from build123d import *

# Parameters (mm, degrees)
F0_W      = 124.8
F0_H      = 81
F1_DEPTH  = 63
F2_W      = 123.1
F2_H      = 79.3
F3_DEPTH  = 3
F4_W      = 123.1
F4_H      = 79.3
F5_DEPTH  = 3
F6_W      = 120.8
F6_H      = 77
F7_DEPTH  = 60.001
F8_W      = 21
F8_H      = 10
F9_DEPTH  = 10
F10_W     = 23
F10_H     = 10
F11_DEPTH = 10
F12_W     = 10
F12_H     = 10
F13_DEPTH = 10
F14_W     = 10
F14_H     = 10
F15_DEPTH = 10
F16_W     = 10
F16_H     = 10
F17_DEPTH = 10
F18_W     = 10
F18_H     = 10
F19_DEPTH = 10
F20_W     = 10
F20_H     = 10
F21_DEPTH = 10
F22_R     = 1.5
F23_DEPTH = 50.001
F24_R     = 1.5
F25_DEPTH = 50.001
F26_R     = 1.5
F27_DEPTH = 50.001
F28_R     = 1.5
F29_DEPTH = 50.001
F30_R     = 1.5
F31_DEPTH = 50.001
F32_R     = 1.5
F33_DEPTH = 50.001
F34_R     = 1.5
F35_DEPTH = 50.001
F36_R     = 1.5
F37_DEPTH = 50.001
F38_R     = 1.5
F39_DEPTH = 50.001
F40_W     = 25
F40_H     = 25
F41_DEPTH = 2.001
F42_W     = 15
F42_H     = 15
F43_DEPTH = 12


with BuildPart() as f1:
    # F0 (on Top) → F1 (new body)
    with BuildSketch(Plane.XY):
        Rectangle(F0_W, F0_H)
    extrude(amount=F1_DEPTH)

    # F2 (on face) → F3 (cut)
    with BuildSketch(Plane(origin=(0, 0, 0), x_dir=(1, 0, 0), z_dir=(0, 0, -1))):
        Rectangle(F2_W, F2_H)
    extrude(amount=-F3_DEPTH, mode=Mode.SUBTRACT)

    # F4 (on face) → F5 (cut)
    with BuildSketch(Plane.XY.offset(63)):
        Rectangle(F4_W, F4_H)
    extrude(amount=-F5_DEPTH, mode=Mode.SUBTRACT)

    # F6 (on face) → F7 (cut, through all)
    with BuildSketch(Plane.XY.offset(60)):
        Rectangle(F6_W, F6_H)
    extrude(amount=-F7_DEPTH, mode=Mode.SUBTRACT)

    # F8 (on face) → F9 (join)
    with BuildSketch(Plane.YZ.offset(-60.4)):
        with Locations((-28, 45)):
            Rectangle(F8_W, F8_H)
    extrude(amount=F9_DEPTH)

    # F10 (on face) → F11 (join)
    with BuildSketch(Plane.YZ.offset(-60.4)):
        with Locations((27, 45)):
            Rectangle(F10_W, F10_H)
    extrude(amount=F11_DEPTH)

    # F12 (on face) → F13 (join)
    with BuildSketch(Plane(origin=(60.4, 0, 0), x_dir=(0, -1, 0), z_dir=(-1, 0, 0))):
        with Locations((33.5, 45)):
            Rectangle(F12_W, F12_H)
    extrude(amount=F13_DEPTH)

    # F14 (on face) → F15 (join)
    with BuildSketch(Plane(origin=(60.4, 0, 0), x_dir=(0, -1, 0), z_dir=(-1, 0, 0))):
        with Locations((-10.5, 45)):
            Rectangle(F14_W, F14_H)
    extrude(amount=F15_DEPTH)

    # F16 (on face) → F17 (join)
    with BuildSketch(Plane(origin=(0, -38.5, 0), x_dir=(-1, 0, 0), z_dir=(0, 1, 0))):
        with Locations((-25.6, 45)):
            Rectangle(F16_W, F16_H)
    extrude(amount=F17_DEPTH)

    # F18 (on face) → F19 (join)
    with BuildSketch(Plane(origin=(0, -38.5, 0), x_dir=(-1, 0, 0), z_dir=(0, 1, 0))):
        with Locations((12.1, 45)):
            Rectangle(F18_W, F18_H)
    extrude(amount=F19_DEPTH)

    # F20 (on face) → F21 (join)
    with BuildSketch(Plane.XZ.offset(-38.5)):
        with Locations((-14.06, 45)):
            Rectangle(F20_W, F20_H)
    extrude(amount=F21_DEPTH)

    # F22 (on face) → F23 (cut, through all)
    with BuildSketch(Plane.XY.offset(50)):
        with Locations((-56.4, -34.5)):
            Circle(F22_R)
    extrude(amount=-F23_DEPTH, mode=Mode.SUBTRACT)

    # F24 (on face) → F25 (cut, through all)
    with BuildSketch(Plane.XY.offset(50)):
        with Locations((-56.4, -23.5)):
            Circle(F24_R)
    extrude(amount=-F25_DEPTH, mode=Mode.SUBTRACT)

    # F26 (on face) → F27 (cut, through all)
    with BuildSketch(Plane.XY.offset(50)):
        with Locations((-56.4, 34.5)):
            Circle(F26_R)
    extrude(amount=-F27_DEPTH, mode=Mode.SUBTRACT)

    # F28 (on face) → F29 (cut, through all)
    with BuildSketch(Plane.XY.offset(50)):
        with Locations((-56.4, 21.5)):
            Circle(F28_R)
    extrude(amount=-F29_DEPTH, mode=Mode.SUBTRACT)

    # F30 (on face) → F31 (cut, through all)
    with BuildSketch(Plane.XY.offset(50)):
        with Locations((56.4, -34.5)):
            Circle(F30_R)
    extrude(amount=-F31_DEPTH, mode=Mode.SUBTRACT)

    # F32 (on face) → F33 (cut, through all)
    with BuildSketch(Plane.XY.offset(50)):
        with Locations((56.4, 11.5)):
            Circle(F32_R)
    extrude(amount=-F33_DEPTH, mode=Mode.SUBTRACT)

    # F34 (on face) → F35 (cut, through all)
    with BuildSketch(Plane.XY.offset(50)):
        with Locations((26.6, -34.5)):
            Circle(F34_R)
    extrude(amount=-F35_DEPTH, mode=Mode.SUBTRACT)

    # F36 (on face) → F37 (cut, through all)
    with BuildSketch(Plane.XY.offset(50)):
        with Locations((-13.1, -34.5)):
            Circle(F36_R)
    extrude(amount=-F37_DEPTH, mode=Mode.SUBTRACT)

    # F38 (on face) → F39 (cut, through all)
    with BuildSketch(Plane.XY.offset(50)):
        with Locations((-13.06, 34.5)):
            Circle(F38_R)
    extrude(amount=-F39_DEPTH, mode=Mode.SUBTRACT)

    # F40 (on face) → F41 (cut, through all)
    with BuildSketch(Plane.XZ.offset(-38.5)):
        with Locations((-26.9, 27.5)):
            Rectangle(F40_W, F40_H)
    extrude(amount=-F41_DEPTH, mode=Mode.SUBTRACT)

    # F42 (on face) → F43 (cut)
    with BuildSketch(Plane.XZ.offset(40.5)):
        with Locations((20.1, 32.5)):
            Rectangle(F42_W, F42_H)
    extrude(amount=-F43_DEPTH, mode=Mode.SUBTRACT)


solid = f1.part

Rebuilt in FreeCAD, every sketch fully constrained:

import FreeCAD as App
import Part
import Sketcher

V = App.Vector
Q = App.Units.Quantity


def add_polygon(sketch, points):
    """Adds a closed chain of lines whose ends are joined by coincident constraints."""
    first, n = sketch.GeometryCount, len(points)
    for a, b in zip(points, points[1:] + points[:1]):
        sketch.addGeometry(Part.LineSegment(App.Vector(*a, 0), App.Vector(*b, 0)), False)
    for i in range(n):
        sketch.addConstraint(Sketcher.Constraint("Coincident", first + i, 2, first + (i + 1) % n, 1))

doc = App.newDocument("Part")
body = doc.addObject("PartDesign::Body", "Body")

# Sketch on XY plane
sketch1 = body.newObject("Sketcher::SketchObject", "Sketch")
sketch1.AttachmentSupport = (doc.getObject("XY_Plane"), [""])
sketch1.MapMode = "FlatFace"
add_polygon(sketch1, [(-62, 40), (-62, -40), (62, -40), (62, 40)])  # lines 0-3
sketch1.addConstraint([
    Sketcher.Constraint("Vertical", 0),
    Sketcher.Constraint("Horizontal", 1),
    Sketcher.Constraint("Vertical", 2),
    Sketcher.Constraint("Horizontal", 3),
    Sketcher.Constraint("Symmetric", 0, 2, 2, 2, -1, 1),
    Sketcher.Constraint("DistanceY", 0, 2, 0, 1, Q("81 mm")),
    Sketcher.Constraint("DistanceX", 1, 1, 1, 2, Q("124.8 mm")),
])
pad1 = body.newObject("PartDesign::Pad", "Pad")
pad1.Profile = sketch1
pad1.Length = 63

# Sketch on XY plane
sketch2 = body.newObject("Sketcher::SketchObject", "Sketch001")
sketch2.AttachmentSupport = (doc.getObject("XY_Plane"), [""])
sketch2.MapMode = "FlatFace"
add_polygon(sketch2, [(-62, -40), (-62, 40), (62, 40), (62, -40)])  # lines 0-3
sketch2.addConstraint([
    Sketcher.Constraint("Vertical", 0),
    Sketcher.Constraint("Horizontal", 1),
    Sketcher.Constraint("Vertical", 2),
    Sketcher.Constraint("Horizontal", 3),
    Sketcher.Constraint("Symmetric", 0, 2, 2, 2, -1, 1),
    Sketcher.Constraint("DistanceX", 1, 1, 1, 2, Q("123.1 mm")),
    Sketcher.Constraint("DistanceY", 0, 1, 0, 2, Q("79.3 mm")),
])
pocket1 = body.newObject("PartDesign::Pocket", "Pocket")
pocket1.Profile = sketch2
pocket1.Length = 3
pocket1.Reversed = True

# Sketch on XY plane
sketch3 = body.newObject("Sketcher::SketchObject", "Sketch002")
sketch3.AttachmentSupport = (doc.getObject("XY_Plane"), [""])
sketch3.MapMode = "FlatFace"
sketch3.AttachmentOffset = App.Placement(V(0, 0, 63), App.Rotation())
add_polygon(sketch3, [(-62, 40), (-62, -40), (62, -40), (62, 40)])  # lines 0-3
sketch3.addConstraint([
    Sketcher.Constraint("Vertical", 0),
    Sketcher.Constraint("Horizontal", 1),
    Sketcher.Constraint("Vertical", 2),
    Sketcher.Constraint("Horizontal", 3),
    Sketcher.Constraint("Symmetric", 0, 2, 2, 2, -1, 1),
    Sketcher.Constraint("DistanceX", 1, 1, 1, 2, Q("123.1 mm")),
    Sketcher.Constraint("DistanceY", 0, 2, 0, 1, Q("79.3 mm")),
])
pocket2 = body.newObject("PartDesign::Pocket", "Pocket001")
pocket2.Profile = sketch3
pocket2.Length = 3

# Sketch on XY plane
sketch4 = body.newObject("Sketcher::SketchObject", "Sketch003")
sketch4.AttachmentSupport = (doc.getObject("XY_Plane"), [""])
sketch4.MapMode = "FlatFace"
sketch4.AttachmentOffset = App.Placement(V(0, 0, 60), App.Rotation())
add_polygon(sketch4, [(-60, 38), (-60, -38), (60, -38), (60, 38)])  # lines 0-3
sketch4.addConstraint([
    Sketcher.Constraint("Vertical", 0),
    Sketcher.Constraint("Horizontal", 1),
    Sketcher.Constraint("Vertical", 2),
    Sketcher.Constraint("Horizontal", 3),
    Sketcher.Constraint("Symmetric", 0, 2, 2, 2, -1, 1),
    Sketcher.Constraint("DistanceY", 0, 2, 0, 1, Q("77 mm")),
    Sketcher.Constraint("DistanceX", 1, 1, 1, 2, Q("120.8 mm")),
])
pocket3 = body.newObject("PartDesign::Pocket", "Pocket002")
pocket3.Profile = sketch4
pocket3.Type = "ThroughAll"

# Sketch on YZ plane
sketch5 = body.newObject("Sketcher::SketchObject", "Sketch004")
sketch5.AttachmentSupport = (doc.getObject("YZ_Plane"), [""])
sketch5.MapMode = "FlatFace"
sketch5.AttachmentOffset = App.Placement(V(0, 0, -60.4), App.Rotation())
add_polygon(sketch5, [(-38, 50), (-38, 40), (-18, 40), (-18, 50)])  # lines 0-3
sketch5.addConstraint([
    Sketcher.Constraint("Vertical", 0),
    Sketcher.Constraint("Horizontal", 1),
    Sketcher.Constraint("Vertical", 2),
    Sketcher.Constraint("Horizontal", 3),
    Sketcher.Constraint("DistanceX", 1, 1, 1, 2, Q("21 mm")),
    Sketcher.Constraint("DistanceY", 0, 2, 0, 1, Q("10 mm")),
    Sketcher.Constraint("DistanceY", -1, 1, 0, 2, Q("40 mm")),
    Sketcher.Constraint("DistanceX", 0, 2, -1, 1, Q("38.5 mm")),
])
pad2 = body.newObject("PartDesign::Pad", "Pad001")
pad2.Profile = sketch5
pad2.Length = 10

# Sketch on YZ plane
sketch6 = body.newObject("Sketcher::SketchObject", "Sketch005")
sketch6.AttachmentSupport = (doc.getObject("YZ_Plane"), [""])
sketch6.MapMode = "FlatFace"
sketch6.AttachmentOffset = App.Placement(V(0, 0, -60.4), App.Rotation())
add_polygon(sketch6, [(16, 50), (16, 40), (38, 40), (38, 50)])  # lines 0-3
sketch6.addConstraint([
    Sketcher.Constraint("Vertical", 0),
    Sketcher.Constraint("Horizontal", 1),
    Sketcher.Constraint("Vertical", 2),
    Sketcher.Constraint("Horizontal", 3),
    Sketcher.Constraint("DistanceX", 1, 1, 1, 2, Q("23 mm")),
    Sketcher.Constraint("DistanceY", 0, 2, 0, 1, Q("10 mm")),
    Sketcher.Constraint("DistanceY", -1, 1, 0, 2, Q("40 mm")),
    Sketcher.Constraint("DistanceX", -1, 1, 0, 2, Q("15.5 mm")),
])
pad3 = body.newObject("PartDesign::Pad", "Pad002")
pad3.Profile = sketch6
pad3.Length = 10

# Sketch on YZ plane
sketch7 = body.newObject("Sketcher::SketchObject", "Sketch006")
sketch7.AttachmentSupport = (doc.getObject("YZ_Plane"), [""])
sketch7.MapMode = "FlatFace"
sketch7.AttachmentOffset = App.Placement(V(0, 0, 60.4), App.Rotation())
add_polygon(sketch7, [(-28, 50), (-28, 40), (-38, 40), (-38, 50)])  # lines 0-3
sketch7.addConstraint([
    Sketcher.Constraint("Vertical", 0),
    Sketcher.Constraint("Horizontal", 1),
    Sketcher.Constraint("Vertical", 2),
    Sketcher.Constraint("Horizontal", 3),
    Sketcher.Constraint("Equal", 3, 0),
    Sketcher.Constraint("DistanceX", 1, 2, 1, 1, Q("10 mm")),
    Sketcher.Constraint("DistanceY", -1, 1, 0, 2, Q("40 mm")),
    Sketcher.Constraint("DistanceX", 0, 2, -1, 1, Q("28.5 mm")),
])
pad4 = body.newObject("PartDesign::Pad", "Pad003")
pad4.Profile = sketch7
pad4.Length = 10
pad4.Reversed = True

# Sketch on YZ plane
sketch8 = body.newObject("Sketcher::SketchObject", "Sketch007")
sketch8.AttachmentSupport = (doc.getObject("YZ_Plane"), [""])
sketch8.MapMode = "FlatFace"
sketch8.AttachmentOffset = App.Placement(V(0, 0, 60.4), App.Rotation())
add_polygon(sketch8, [(16, 50), (16, 40), (6, 40), (6, 50)])  # lines 0-3
sketch8.addConstraint([
    Sketcher.Constraint("Vertical", 0),
    Sketcher.Constraint("Horizontal", 1),
    Sketcher.Constraint("Vertical", 2),
    Sketcher.Constraint("Horizontal", 3),
    Sketcher.Constraint("Equal", 3, 0),
    Sketcher.Constraint("DistanceX", 1, 2, 1, 1, Q("10 mm")),
    Sketcher.Constraint("DistanceY", -1, 1, 0, 2, Q("40 mm")),
    Sketcher.Constraint("DistanceX", -1, 1, 0, 2, Q("15.5 mm")),
])
pad5 = body.newObject("PartDesign::Pad", "Pad004")
pad5.Profile = sketch8
pad5.Length = 10
pad5.Reversed = True

# Sketch on XZ plane
sketch9 = body.newObject("Sketcher::SketchObject", "Sketch008")
sketch9.AttachmentSupport = (doc.getObject("XZ_Plane"), [""])
sketch9.MapMode = "FlatFace"
sketch9.AttachmentOffset = App.Placement(V(0, 0, 38.5), App.Rotation())
add_polygon(sketch9, [(31, 50), (31, 40), (21, 40), (21, 50)])  # lines 0-3
sketch9.addConstraint([
    Sketcher.Constraint("Vertical", 0),
    Sketcher.Constraint("Horizontal", 1),
    Sketcher.Constraint("Vertical", 2),
    Sketcher.Constraint("Horizontal", 3),
    Sketcher.Constraint("Equal", 3, 0),
    Sketcher.Constraint("DistanceX", 1, 2, 1, 1, Q("10 mm")),
    Sketcher.Constraint("DistanceY", -1, 1, 0, 2, Q("40 mm")),
    Sketcher.Constraint("DistanceX", -1, 1, 0, 2, Q("30.6 mm")),
])
pad6 = body.newObject("PartDesign::Pad", "Pad005")
pad6.Profile = sketch9
pad6.Length = 10
pad6.Reversed = True

# Sketch on XZ plane
sketch10 = body.newObject("Sketcher::SketchObject", "Sketch009")
sketch10.AttachmentSupport = (doc.getObject("XZ_Plane"), [""])
sketch10.MapMode = "FlatFace"
sketch10.AttachmentOffset = App.Placement(V(0, 0, 38.5), App.Rotation())
add_polygon(sketch10, [(-7, 50), (-7, 40), (-17, 40), (-17, 50)])  # lines 0-3
sketch10.addConstraint([
    Sketcher.Constraint("Vertical", 0),
    Sketcher.Constraint("Horizontal", 1),
    Sketcher.Constraint("Vertical", 2),
    Sketcher.Constraint("Horizontal", 3),
    Sketcher.Constraint("Equal", 3, 0),
    Sketcher.Constraint("DistanceX", 1, 2, 1, 1, Q("10 mm")),
    Sketcher.Constraint("DistanceY", -1, 1, 0, 2, Q("40 mm")),
    Sketcher.Constraint("DistanceX", 0, 2, -1, 1, Q("7.1 mm")),
])
pad7 = body.newObject("PartDesign::Pad", "Pad006")
pad7.Profile = sketch10
pad7.Length = 10
pad7.Reversed = True

# Sketch on XZ plane
sketch11 = body.newObject("Sketcher::SketchObject", "Sketch010")
sketch11.AttachmentSupport = (doc.getObject("XZ_Plane"), [""])
sketch11.MapMode = "FlatFace"
sketch11.AttachmentOffset = App.Placement(V(0, 0, -38.5), App.Rotation())
add_polygon(sketch11, [(-19, 50), (-19, 40), (-9, 40), (-9, 50)])  # lines 0-3
sketch11.addConstraint([
    Sketcher.Constraint("Vertical", 0),
    Sketcher.Constraint("Horizontal", 1),
    Sketcher.Constraint("Vertical", 2),
    Sketcher.Constraint("Horizontal", 3),
    Sketcher.Constraint("Equal", 3, 0),
    Sketcher.Constraint("DistanceX", 1, 1, 1, 2, Q("10 mm")),
    Sketcher.Constraint("DistanceY", -1, 1, 0, 2, Q("40 mm")),
    Sketcher.Constraint("DistanceX", 0, 2, -1, 1, Q("19.06 mm")),
])
pad8 = body.newObject("PartDesign::Pad", "Pad007")
pad8.Profile = sketch11
pad8.Length = 10

# Sketch on XY plane
sketch12 = body.newObject("Sketcher::SketchObject", "Sketch011")
sketch12.AttachmentSupport = (doc.getObject("XY_Plane"), [""])
sketch12.MapMode = "FlatFace"
sketch12.AttachmentOffset = App.Placement(V(0, 0, 50), App.Rotation())
sketch12.addGeometry(Part.Circle(V(-56.4, -34.5, 0), V(0, 0, 1), 1.5), False)
sketch12.addConstraint([
    Sketcher.Constraint("Diameter", 0, Q("3 mm")),
    Sketcher.Constraint("DistanceX", 0, 3, -1, 1, Q("56.4 mm")),
    Sketcher.Constraint("DistanceY", 0, 3, -1, 1, Q("34.5 mm")),
])
pocket4 = body.newObject("PartDesign::Pocket", "Pocket003")
pocket4.Profile = sketch12
pocket4.Type = "ThroughAll"

# Sketch on XY plane
sketch13 = body.newObject("Sketcher::SketchObject", "Sketch012")
sketch13.AttachmentSupport = (doc.getObject("XY_Plane"), [""])
sketch13.MapMode = "FlatFace"
sketch13.AttachmentOffset = App.Placement(V(0, 0, 50), App.Rotation())
sketch13.addGeometry(Part.Circle(V(-56.4, -23.5, 0), V(0, 0, 1), 1.5), False)
sketch13.addConstraint([
    Sketcher.Constraint("Diameter", 0, Q("3 mm")),
    Sketcher.Constraint("DistanceX", 0, 3, -1, 1, Q("56.4 mm")),
    Sketcher.Constraint("DistanceY", 0, 3, -1, 1, Q("23.5 mm")),
])
pocket5 = body.newObject("PartDesign::Pocket", "Pocket004")
pocket5.Profile = sketch13
pocket5.Type = "ThroughAll"

# Sketch on XY plane
sketch14 = body.newObject("Sketcher::SketchObject", "Sketch013")
sketch14.AttachmentSupport = (doc.getObject("XY_Plane"), [""])
sketch14.MapMode = "FlatFace"
sketch14.AttachmentOffset = App.Placement(V(0, 0, 50), App.Rotation())
sketch14.addGeometry(Part.Circle(V(-56.4, 34.5, 0), V(0, 0, 1), 1.5), False)
sketch14.addConstraint([
    Sketcher.Constraint("Diameter", 0, Q("3 mm")),
    Sketcher.Constraint("DistanceX", 0, 3, -1, 1, Q("56.4 mm")),
    Sketcher.Constraint("DistanceY", -1, 1, 0, 3, Q("34.5 mm")),
])
pocket6 = body.newObject("PartDesign::Pocket", "Pocket005")
pocket6.Profile = sketch14
pocket6.Type = "ThroughAll"

# Sketch on XY plane
sketch15 = body.newObject("Sketcher::SketchObject", "Sketch014")
sketch15.AttachmentSupport = (doc.getObject("XY_Plane"), [""])
sketch15.MapMode = "FlatFace"
sketch15.AttachmentOffset = App.Placement(V(0, 0, 50), App.Rotation())
sketch15.addGeometry(Part.Circle(V(-56.4, 21.5, 0), V(0, 0, 1), 1.5), False)
sketch15.addConstraint([
    Sketcher.Constraint("Diameter", 0, Q("3 mm")),
    Sketcher.Constraint("DistanceX", 0, 3, -1, 1, Q("56.4 mm")),
    Sketcher.Constraint("DistanceY", -1, 1, 0, 3, Q("21.5 mm")),
])
pocket7 = body.newObject("PartDesign::Pocket", "Pocket006")
pocket7.Profile = sketch15
pocket7.Type = "ThroughAll"

# Sketch on XY plane
sketch16 = body.newObject("Sketcher::SketchObject", "Sketch015")
sketch16.AttachmentSupport = (doc.getObject("XY_Plane"), [""])
sketch16.MapMode = "FlatFace"
sketch16.AttachmentOffset = App.Placement(V(0, 0, 50), App.Rotation())
sketch16.addGeometry(Part.Circle(V(56.4, -34.5, 0), V(0, 0, 1), 1.5), False)
sketch16.addConstraint([
    Sketcher.Constraint("Diameter", 0, Q("3 mm")),
    Sketcher.Constraint("DistanceX", -1, 1, 0, 3, Q("56.4 mm")),
    Sketcher.Constraint("DistanceY", 0, 3, -1, 1, Q("34.5 mm")),
])
pocket8 = body.newObject("PartDesign::Pocket", "Pocket007")
pocket8.Profile = sketch16
pocket8.Type = "ThroughAll"

# Sketch on XY plane
sketch17 = body.newObject("Sketcher::SketchObject", "Sketch016")
sketch17.AttachmentSupport = (doc.getObject("XY_Plane"), [""])
sketch17.MapMode = "FlatFace"
sketch17.AttachmentOffset = App.Placement(V(0, 0, 50), App.Rotation())
sketch17.addGeometry(Part.Circle(V(56.4, 11.5, 0), V(0, 0, 1), 1.5), False)
sketch17.addConstraint([
    Sketcher.Constraint("Diameter", 0, Q("3 mm")),
    Sketcher.Constraint("DistanceX", -1, 1, 0, 3, Q("56.4 mm")),
    Sketcher.Constraint("DistanceY", -1, 1, 0, 3, Q("11.5 mm")),
])
pocket9 = body.newObject("PartDesign::Pocket", "Pocket008")
pocket9.Profile = sketch17
pocket9.Type = "ThroughAll"

# Sketch on XY plane
sketch18 = body.newObject("Sketcher::SketchObject", "Sketch017")
sketch18.AttachmentSupport = (doc.getObject("XY_Plane"), [""])
sketch18.MapMode = "FlatFace"
sketch18.AttachmentOffset = App.Placement(V(0, 0, 50), App.Rotation())
sketch18.addGeometry(Part.Circle(V(26.6, -34.5, 0), V(0, 0, 1), 1.5), False)
sketch18.addConstraint([
    Sketcher.Constraint("Diameter", 0, Q("3 mm")),
    Sketcher.Constraint("DistanceX", -1, 1, 0, 3, Q("26.6 mm")),
    Sketcher.Constraint("DistanceY", 0, 3, -1, 1, Q("34.5 mm")),
])
pocket10 = body.newObject("PartDesign::Pocket", "Pocket009")
pocket10.Profile = sketch18
pocket10.Type = "ThroughAll"

# Sketch on XY plane
sketch19 = body.newObject("Sketcher::SketchObject", "Sketch018")
sketch19.AttachmentSupport = (doc.getObject("XY_Plane"), [""])
sketch19.MapMode = "FlatFace"
sketch19.AttachmentOffset = App.Placement(V(0, 0, 50), App.Rotation())
sketch19.addGeometry(Part.Circle(V(-13.1, -34.5, 0), V(0, 0, 1), 1.5), False)
sketch19.addConstraint([
    Sketcher.Constraint("Diameter", 0, Q("3 mm")),
    Sketcher.Constraint("DistanceX", 0, 3, -1, 1, Q("13.1 mm")),
    Sketcher.Constraint("DistanceY", 0, 3, -1, 1, Q("34.5 mm")),
])
pocket11 = body.newObject("PartDesign::Pocket", "Pocket010")
pocket11.Profile = sketch19
pocket11.Type = "ThroughAll"

# Sketch on XY plane
sketch20 = body.newObject("Sketcher::SketchObject", "Sketch019")
sketch20.AttachmentSupport = (doc.getObject("XY_Plane"), [""])
sketch20.MapMode = "FlatFace"
sketch20.AttachmentOffset = App.Placement(V(0, 0, 50), App.Rotation())
sketch20.addGeometry(Part.Circle(V(-13.1, 34.5, 0), V(0, 0, 1), 1.5), False)
sketch20.addConstraint([
    Sketcher.Constraint("Diameter", 0, Q("3 mm")),
    Sketcher.Constraint("DistanceY", -1, 1, 0, 3, Q("34.5 mm")),
    Sketcher.Constraint("DistanceX", 0, 3, -1, 1, Q("13.06 mm")),
])
pocket12 = body.newObject("PartDesign::Pocket", "Pocket011")
pocket12.Profile = sketch20
pocket12.Type = "ThroughAll"

# Sketch on XZ plane
sketch21 = body.newObject("Sketcher::SketchObject", "Sketch020")
sketch21.AttachmentSupport = (doc.getObject("XZ_Plane"), [""])
sketch21.MapMode = "FlatFace"
sketch21.AttachmentOffset = App.Placement(V(0, 0, -38.5), App.Rotation())
add_polygon(sketch21, [(-39, 40), (-39, 15), (-14, 15), (-14, 40)])  # lines 0-3
sketch21.addConstraint([
    Sketcher.Constraint("Vertical", 0),
    Sketcher.Constraint("Horizontal", 1),
    Sketcher.Constraint("Vertical", 2),
    Sketcher.Constraint("Horizontal", 3),
    Sketcher.Constraint("Equal", 3, 0),
    Sketcher.Constraint("DistanceX", 1, 1, 1, 2, Q("25 mm")),
    Sketcher.Constraint("DistanceY", -1, 1, 0, 2, Q("15 mm")),
    Sketcher.Constraint("DistanceX", 0, 2, -1, 1, Q("39.4 mm")),
])
pocket13 = body.newObject("PartDesign::Pocket", "Pocket012")
pocket13.Profile = sketch21
pocket13.Type = "ThroughAll"

# Sketch on XZ plane
sketch22 = body.newObject("Sketcher::SketchObject", "Sketch021")
sketch22.AttachmentSupport = (doc.getObject("XZ_Plane"), [""])
sketch22.MapMode = "FlatFace"
sketch22.AttachmentOffset = App.Placement(V(0, 0, 40.5), App.Rotation())
add_polygon(sketch22, [(13, 40), (13, 25), (28, 25), (28, 40)])  # lines 0-3
sketch22.addConstraint([
    Sketcher.Constraint("Vertical", 0),
    Sketcher.Constraint("Horizontal", 1),
    Sketcher.Constraint("Vertical", 2),
    Sketcher.Constraint("Horizontal", 3),
    Sketcher.Constraint("Equal", 3, 0),
    Sketcher.Constraint("DistanceX", 1, 1, 1, 2, Q("15 mm")),
    Sketcher.Constraint("DistanceY", -1, 1, 0, 2, Q("25 mm")),
    Sketcher.Constraint("DistanceX", -1, 1, 0, 2, Q("12.6 mm")),
])
pocket14 = body.newObject("PartDesign::Pocket", "Pocket013")
pocket14.Profile = sketch22
pocket14.Length = 12

doc.recompute()
